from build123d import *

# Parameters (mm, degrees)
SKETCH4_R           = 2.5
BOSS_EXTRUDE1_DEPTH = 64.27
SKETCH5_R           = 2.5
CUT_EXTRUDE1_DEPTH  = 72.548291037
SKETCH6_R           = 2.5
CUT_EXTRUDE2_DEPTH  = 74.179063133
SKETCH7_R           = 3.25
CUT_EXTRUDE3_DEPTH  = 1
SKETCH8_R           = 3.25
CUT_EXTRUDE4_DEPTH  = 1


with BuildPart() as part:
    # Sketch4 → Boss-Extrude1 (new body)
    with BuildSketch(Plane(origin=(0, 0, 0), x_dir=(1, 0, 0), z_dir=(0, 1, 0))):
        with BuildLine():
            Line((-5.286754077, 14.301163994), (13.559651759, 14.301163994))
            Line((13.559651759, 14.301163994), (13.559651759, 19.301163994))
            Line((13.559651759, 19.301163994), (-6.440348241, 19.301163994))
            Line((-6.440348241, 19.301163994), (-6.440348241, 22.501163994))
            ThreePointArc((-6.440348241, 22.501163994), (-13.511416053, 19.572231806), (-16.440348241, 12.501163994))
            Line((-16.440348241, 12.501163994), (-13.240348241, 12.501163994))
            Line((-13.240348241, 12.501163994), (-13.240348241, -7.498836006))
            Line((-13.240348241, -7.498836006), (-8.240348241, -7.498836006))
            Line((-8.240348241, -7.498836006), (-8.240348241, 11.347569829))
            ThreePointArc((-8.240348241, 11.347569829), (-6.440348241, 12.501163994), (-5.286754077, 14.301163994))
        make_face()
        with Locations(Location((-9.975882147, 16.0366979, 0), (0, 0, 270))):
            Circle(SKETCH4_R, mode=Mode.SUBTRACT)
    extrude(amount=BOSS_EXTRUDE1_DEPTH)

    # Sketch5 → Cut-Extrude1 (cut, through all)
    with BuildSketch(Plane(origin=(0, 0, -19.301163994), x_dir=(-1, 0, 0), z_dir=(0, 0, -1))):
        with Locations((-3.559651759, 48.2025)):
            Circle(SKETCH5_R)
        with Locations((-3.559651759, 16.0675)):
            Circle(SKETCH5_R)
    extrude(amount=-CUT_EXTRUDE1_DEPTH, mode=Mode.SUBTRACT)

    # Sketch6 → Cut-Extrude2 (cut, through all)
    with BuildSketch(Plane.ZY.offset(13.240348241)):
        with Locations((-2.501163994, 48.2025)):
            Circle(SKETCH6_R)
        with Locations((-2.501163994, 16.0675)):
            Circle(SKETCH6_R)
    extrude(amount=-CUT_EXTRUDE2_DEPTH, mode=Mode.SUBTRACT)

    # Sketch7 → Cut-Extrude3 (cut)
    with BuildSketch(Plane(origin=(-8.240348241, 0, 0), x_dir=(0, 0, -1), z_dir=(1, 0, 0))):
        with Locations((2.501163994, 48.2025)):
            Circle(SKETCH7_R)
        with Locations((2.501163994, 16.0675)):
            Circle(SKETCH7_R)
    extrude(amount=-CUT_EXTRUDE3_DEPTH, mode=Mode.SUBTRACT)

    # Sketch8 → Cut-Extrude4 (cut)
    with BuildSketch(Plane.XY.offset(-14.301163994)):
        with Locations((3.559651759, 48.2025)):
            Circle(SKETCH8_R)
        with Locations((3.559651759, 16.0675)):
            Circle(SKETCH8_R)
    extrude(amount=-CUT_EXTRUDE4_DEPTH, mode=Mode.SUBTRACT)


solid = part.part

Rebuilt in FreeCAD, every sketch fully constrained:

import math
import FreeCAD as App
import Part
import Sketcher

doc = App.newDocument("Part")
body = doc.addObject("PartDesign::Body", "Body")

# Sketch on XZ plane
sketch1 = doc.addObject("Sketcher::SketchObject", "Sketch")
body.addObject(sketch1)
sketch1.AttachmentSupport = (doc.XZ_Plane, [""])
sketch1.MapMode = "FlatFace"
sketch1.addGeometry([
    Part.LineSegment(App.Vector(-5.3, -14.3, 0), App.Vector(13.6, -14.3, 0)),  # 0
    Part.LineSegment(App.Vector(13.6, -14.3, 0), App.Vector(13.6, -19.3, 0)),  # 1
    Part.LineSegment(App.Vector(13.6, -19.3, 0), App.Vector(-6.4, -19.3, 0)),  # 2
    Part.LineSegment(App.Vector(-6.4, -19.3, 0), App.Vector(-6.4, -22.5, 0)),  # 3
    Part.ArcOfCircle(Part.Circle(App.Vector(-6.4, -12.5, 0), App.Vector(0, 0, 1), 10), math.radians(180), math.radians(270)),  # 4
    Part.LineSegment(App.Vector(-16.4, -12.5, 0), App.Vector(-13.2, -12.5, 0)),  # 5
    Part.LineSegment(App.Vector(-13.2, -12.5, 0), App.Vector(-13.2, 7.5, 0)),  # 6
    Part.LineSegment(App.Vector(-13.2, 7.5, 0), App.Vector(-8.2, 7.5, 0)),  # 7
    Part.LineSegment(App.Vector(-8.2, 7.5, 0), App.Vector(-8.2, -11.3, 0)),  # 8
    Part.ArcOfCircle(Part.Circle(App.Vector(-10, -16, 0), App.Vector(0, 0, 1), 5), math.radians(20), math.radians(70)),  # 9
    Part.Circle(App.Vector(-10, -16, 0), App.Vector(0, 0, 1), 2.5),  # 10
], False)
sketch1.addConstraint([
    Sketcher.Constraint("Coincident", 0, 2, 1, 1),
    Sketcher.Constraint("Coincident", 1, 2, 2, 1),
    Sketcher.Constraint("Coincident", 2, 2, 3, 1),
    Sketcher.Constraint("Coincident", 3, 2, 4, 2),
    Sketcher.Constraint("Coincident", 4, 1, 5, 1),
    Sketcher.Constraint("Coincident", 5, 2, 6, 1),
    Sketcher.Constraint("Coincident", 6, 2, 7, 1),
    Sketcher.Constraint("Coincident", 7, 2, 8, 1),
    Sketcher.Constraint("Coincident", 8, 2, 9, 2),
    Sketcher.Constraint("Coincident", 9, 1, 0, 1),
    Sketcher.Constraint("Horizontal", 0),
    Sketcher.Constraint("Vertical", 1),
    Sketcher.Constraint("Horizontal", 2),
    Sketcher.Constraint("Vertical", 3),
    Sketcher.Constraint("Horizontal", 5),
    Sketcher.Constraint("Vertical", 6),
    Sketcher.Constraint("Horizontal", 7),
    Sketcher.Constraint("Vertical", 8),
    Sketcher.Constraint("Coincident", 10, 3, 9, 3),
    Sketcher.Constraint("Vertical", 4, 3, 2, 2),
    Sketcher.Constraint("Equal", 7, 1),
    Sketcher.Constraint("Equal", 5, 3),
    Sketcher.Constraint("Equal", 2, 6),
    Sketcher.Constraint("Equal", 0, 8),
    Sketcher.Constraint("Diameter", 10, 5.0),
    Sketcher.Constraint("Radius", 4, 10.0),
    Sketcher.Constraint("Radius", 9, 5.0),
    Sketcher.Constraint("DistanceX", 2, 2, 2, 1, 20.0),
    Sketcher.Constraint("DistanceX", 7, 1, 7, 2, 5.0),
    Sketcher.Constraint("DistanceX", 5, 1, 5, 2, 3.2),
    Sketcher.Constraint("DistanceY", 3, 2, 4, 1, 10.0),
    Sketcher.Constraint("DistanceX", 0, 1, 0, 2, 18.846406),
    Sketcher.Constraint("DistanceX", 4, 3, -1, 1, 6.440348),
    Sketcher.Constraint("DistanceY", 8, 2, -1, 1, 11.34757),
])
pad1 = doc.addObject("PartDesign::Pad", "Pad")
body.addObject(pad1)
pad1.Profile = sketch1
pad1.Length = 64.27
pad1.Reversed = True

# Sketch on XY plane
sketch2 = doc.addObject("Sketcher::SketchObject", "Sketch001")
body.addObject(sketch2)
sketch2.AttachmentSupport = (doc.XY_Plane, [""])
sketch2.MapMode = "FlatFace"
sketch2.AttachmentOffset = App.Placement(App.Vector(0, 0, -19.301164), App.Rotation())
sketch2.addGeometry([
    Part.Circle(App.Vector(3.6, 48.2, 0), App.Vector(0, 0, 1), 2.5),
    Part.Circle(App.Vector(3.6, 16.1, 0), App.Vector(0, 0, 1), 2.5),
], False)
sketch2.addConstraint([
    Sketcher.Constraint("Equal", 0, 1),
    Sketcher.Constraint("Vertical", 0, 3, 1, 3),
    Sketcher.Constraint("Diameter", 0, 5.0),
    Sketcher.Constraint("DistanceY", 1, 3, 0, 3, 32.135),
    Sketcher.Constraint("DistanceY", -1, 1, 0, 3, 48.2025),
    Sketcher.Constraint("DistanceX", -1, 1, 0, 3, 3.559652),
])
pocket1 = doc.addObject("PartDesign::Pocket", "Pocket")
body.addObject(pocket1)
pocket1.Profile = sketch2
pocket1.Type = "ThroughAll"
pocket1.Reversed = True

# Sketch on YZ plane
sketch3 = doc.addObject("Sketcher::SketchObject", "Sketch002")
body.addObject(sketch3)
sketch3.AttachmentSupport = (doc.YZ_Plane, [""])
sketch3.MapMode = "FlatFace"
sketch3.AttachmentOffset = App.Placement(App.Vector(0, 0, -13.240348), App.Rotation())
sketch3.addGeometry([
    Part.Circle(App.Vector(48.2, -2.5, 0), App.Vector(0, 0, 1), 2.5),
    Part.Circle(App.Vector(16.1, -2.5, 0), App.Vector(0, 0, 1), 2.5),
], False)
sketch3.addConstraint([
    Sketcher.Constraint("Equal", 0, 1),
    Sketcher.Constraint("Horizontal", 0, 3, 1, 3),
    Sketcher.Constraint("Diameter", 0, 5.0),
    Sketcher.Constraint("DistanceX", 1, 3, 0, 3, 32.135),
    Sketcher.Constraint("DistanceX", -1, 1, 0, 3, 48.2025),
    Sketcher.Constraint("DistanceY", 0, 3, -1, 1, 2.501164),
])
pocket2 = doc.addObject("PartDesign::Pocket", "Pocket001")
body.addObject(pocket2)
pocket2.Profile = sketch3
pocket2.Type = "ThroughAll"
pocket2.Reversed = True

# Sketch on YZ plane
sketch4 = doc.addObject("Sketcher::SketchObject", "Sketch003")
body.addObject(sketch4)
sketch4.AttachmentSupport = (doc.YZ_Plane, [""])
sketch4.MapMode = "FlatFace"
sketch4.AttachmentOffset = App.Placement(App.Vector(0, 0, -8.240348), App.Rotation())
sketch4.addGeometry([
    Part.Circle(App.Vector(48.2, -2.5, 0), App.Vector(0, 0, 1), 3.2),
    Part.Circle(App.Vector(16.1, -2.5, 0), App.Vector(0, 0, 1), 3.2),
], False)
sketch4.addConstraint([
    Sketcher.Constraint("Equal", 0, 1),
    Sketcher.Constraint("Horizontal", 0, 3, 1, 3),
    Sketcher.Constraint("Diameter", 0, 6.5),
    Sketcher.Constraint("DistanceX", 1, 3, 0, 3, 32.135),
    Sketcher.Constraint("DistanceX", -1, 1, 0, 3, 48.2025),
    Sketcher.Constraint("DistanceY", 0, 3, -1, 1, 2.501164),
])
pocket3 = doc.addObject("PartDesign::Pocket", "Pocket002")
body.addObject(pocket3)
pocket3.Profile = sketch4
pocket3.Length = 1

# Sketch on XY plane
sketch5 = doc.addObject("Sketcher::SketchObject", "Sketch004")
body.addObject(sketch5)
sketch5.AttachmentSupport = (doc.XY_Plane, [""])
sketch5.MapMode = "FlatFace"
sketch5.AttachmentOffset = App.Placement(App.Vector(0, 0, -14.301164), App.Rotation())
sketch5.addGeometry([
    Part.Circle(App.Vector(3.6, 48.2, 0), App.Vector(0, 0, 1), 3.2),
    Part.Circle(App.Vector(3.6, 16.1, 0), App.Vector(0, 0, 1), 3.2),
], False)
sketch5.addConstraint([
    Sketcher.Constraint("Equal", 0, 1),
    Sketcher.Constraint("Vertical", 0, 3, 1, 3),
    Sketcher.Constraint("Diameter", 0, 6.5),
    Sketcher.Constraint("DistanceY", 1, 3, 0, 3, 32.135),
    Sketcher.Constraint("DistanceY", -1, 1, 0, 3, 48.2025),
    Sketcher.Constraint("DistanceX", -1, 1, 0, 3, 3.559652),
])
pocket4 = doc.addObject("PartDesign::Pocket", "Pocket003")
body.addObject(pocket4)
pocket4.Profile = sketch5
pocket4.Length = 1

doc.recompute()
